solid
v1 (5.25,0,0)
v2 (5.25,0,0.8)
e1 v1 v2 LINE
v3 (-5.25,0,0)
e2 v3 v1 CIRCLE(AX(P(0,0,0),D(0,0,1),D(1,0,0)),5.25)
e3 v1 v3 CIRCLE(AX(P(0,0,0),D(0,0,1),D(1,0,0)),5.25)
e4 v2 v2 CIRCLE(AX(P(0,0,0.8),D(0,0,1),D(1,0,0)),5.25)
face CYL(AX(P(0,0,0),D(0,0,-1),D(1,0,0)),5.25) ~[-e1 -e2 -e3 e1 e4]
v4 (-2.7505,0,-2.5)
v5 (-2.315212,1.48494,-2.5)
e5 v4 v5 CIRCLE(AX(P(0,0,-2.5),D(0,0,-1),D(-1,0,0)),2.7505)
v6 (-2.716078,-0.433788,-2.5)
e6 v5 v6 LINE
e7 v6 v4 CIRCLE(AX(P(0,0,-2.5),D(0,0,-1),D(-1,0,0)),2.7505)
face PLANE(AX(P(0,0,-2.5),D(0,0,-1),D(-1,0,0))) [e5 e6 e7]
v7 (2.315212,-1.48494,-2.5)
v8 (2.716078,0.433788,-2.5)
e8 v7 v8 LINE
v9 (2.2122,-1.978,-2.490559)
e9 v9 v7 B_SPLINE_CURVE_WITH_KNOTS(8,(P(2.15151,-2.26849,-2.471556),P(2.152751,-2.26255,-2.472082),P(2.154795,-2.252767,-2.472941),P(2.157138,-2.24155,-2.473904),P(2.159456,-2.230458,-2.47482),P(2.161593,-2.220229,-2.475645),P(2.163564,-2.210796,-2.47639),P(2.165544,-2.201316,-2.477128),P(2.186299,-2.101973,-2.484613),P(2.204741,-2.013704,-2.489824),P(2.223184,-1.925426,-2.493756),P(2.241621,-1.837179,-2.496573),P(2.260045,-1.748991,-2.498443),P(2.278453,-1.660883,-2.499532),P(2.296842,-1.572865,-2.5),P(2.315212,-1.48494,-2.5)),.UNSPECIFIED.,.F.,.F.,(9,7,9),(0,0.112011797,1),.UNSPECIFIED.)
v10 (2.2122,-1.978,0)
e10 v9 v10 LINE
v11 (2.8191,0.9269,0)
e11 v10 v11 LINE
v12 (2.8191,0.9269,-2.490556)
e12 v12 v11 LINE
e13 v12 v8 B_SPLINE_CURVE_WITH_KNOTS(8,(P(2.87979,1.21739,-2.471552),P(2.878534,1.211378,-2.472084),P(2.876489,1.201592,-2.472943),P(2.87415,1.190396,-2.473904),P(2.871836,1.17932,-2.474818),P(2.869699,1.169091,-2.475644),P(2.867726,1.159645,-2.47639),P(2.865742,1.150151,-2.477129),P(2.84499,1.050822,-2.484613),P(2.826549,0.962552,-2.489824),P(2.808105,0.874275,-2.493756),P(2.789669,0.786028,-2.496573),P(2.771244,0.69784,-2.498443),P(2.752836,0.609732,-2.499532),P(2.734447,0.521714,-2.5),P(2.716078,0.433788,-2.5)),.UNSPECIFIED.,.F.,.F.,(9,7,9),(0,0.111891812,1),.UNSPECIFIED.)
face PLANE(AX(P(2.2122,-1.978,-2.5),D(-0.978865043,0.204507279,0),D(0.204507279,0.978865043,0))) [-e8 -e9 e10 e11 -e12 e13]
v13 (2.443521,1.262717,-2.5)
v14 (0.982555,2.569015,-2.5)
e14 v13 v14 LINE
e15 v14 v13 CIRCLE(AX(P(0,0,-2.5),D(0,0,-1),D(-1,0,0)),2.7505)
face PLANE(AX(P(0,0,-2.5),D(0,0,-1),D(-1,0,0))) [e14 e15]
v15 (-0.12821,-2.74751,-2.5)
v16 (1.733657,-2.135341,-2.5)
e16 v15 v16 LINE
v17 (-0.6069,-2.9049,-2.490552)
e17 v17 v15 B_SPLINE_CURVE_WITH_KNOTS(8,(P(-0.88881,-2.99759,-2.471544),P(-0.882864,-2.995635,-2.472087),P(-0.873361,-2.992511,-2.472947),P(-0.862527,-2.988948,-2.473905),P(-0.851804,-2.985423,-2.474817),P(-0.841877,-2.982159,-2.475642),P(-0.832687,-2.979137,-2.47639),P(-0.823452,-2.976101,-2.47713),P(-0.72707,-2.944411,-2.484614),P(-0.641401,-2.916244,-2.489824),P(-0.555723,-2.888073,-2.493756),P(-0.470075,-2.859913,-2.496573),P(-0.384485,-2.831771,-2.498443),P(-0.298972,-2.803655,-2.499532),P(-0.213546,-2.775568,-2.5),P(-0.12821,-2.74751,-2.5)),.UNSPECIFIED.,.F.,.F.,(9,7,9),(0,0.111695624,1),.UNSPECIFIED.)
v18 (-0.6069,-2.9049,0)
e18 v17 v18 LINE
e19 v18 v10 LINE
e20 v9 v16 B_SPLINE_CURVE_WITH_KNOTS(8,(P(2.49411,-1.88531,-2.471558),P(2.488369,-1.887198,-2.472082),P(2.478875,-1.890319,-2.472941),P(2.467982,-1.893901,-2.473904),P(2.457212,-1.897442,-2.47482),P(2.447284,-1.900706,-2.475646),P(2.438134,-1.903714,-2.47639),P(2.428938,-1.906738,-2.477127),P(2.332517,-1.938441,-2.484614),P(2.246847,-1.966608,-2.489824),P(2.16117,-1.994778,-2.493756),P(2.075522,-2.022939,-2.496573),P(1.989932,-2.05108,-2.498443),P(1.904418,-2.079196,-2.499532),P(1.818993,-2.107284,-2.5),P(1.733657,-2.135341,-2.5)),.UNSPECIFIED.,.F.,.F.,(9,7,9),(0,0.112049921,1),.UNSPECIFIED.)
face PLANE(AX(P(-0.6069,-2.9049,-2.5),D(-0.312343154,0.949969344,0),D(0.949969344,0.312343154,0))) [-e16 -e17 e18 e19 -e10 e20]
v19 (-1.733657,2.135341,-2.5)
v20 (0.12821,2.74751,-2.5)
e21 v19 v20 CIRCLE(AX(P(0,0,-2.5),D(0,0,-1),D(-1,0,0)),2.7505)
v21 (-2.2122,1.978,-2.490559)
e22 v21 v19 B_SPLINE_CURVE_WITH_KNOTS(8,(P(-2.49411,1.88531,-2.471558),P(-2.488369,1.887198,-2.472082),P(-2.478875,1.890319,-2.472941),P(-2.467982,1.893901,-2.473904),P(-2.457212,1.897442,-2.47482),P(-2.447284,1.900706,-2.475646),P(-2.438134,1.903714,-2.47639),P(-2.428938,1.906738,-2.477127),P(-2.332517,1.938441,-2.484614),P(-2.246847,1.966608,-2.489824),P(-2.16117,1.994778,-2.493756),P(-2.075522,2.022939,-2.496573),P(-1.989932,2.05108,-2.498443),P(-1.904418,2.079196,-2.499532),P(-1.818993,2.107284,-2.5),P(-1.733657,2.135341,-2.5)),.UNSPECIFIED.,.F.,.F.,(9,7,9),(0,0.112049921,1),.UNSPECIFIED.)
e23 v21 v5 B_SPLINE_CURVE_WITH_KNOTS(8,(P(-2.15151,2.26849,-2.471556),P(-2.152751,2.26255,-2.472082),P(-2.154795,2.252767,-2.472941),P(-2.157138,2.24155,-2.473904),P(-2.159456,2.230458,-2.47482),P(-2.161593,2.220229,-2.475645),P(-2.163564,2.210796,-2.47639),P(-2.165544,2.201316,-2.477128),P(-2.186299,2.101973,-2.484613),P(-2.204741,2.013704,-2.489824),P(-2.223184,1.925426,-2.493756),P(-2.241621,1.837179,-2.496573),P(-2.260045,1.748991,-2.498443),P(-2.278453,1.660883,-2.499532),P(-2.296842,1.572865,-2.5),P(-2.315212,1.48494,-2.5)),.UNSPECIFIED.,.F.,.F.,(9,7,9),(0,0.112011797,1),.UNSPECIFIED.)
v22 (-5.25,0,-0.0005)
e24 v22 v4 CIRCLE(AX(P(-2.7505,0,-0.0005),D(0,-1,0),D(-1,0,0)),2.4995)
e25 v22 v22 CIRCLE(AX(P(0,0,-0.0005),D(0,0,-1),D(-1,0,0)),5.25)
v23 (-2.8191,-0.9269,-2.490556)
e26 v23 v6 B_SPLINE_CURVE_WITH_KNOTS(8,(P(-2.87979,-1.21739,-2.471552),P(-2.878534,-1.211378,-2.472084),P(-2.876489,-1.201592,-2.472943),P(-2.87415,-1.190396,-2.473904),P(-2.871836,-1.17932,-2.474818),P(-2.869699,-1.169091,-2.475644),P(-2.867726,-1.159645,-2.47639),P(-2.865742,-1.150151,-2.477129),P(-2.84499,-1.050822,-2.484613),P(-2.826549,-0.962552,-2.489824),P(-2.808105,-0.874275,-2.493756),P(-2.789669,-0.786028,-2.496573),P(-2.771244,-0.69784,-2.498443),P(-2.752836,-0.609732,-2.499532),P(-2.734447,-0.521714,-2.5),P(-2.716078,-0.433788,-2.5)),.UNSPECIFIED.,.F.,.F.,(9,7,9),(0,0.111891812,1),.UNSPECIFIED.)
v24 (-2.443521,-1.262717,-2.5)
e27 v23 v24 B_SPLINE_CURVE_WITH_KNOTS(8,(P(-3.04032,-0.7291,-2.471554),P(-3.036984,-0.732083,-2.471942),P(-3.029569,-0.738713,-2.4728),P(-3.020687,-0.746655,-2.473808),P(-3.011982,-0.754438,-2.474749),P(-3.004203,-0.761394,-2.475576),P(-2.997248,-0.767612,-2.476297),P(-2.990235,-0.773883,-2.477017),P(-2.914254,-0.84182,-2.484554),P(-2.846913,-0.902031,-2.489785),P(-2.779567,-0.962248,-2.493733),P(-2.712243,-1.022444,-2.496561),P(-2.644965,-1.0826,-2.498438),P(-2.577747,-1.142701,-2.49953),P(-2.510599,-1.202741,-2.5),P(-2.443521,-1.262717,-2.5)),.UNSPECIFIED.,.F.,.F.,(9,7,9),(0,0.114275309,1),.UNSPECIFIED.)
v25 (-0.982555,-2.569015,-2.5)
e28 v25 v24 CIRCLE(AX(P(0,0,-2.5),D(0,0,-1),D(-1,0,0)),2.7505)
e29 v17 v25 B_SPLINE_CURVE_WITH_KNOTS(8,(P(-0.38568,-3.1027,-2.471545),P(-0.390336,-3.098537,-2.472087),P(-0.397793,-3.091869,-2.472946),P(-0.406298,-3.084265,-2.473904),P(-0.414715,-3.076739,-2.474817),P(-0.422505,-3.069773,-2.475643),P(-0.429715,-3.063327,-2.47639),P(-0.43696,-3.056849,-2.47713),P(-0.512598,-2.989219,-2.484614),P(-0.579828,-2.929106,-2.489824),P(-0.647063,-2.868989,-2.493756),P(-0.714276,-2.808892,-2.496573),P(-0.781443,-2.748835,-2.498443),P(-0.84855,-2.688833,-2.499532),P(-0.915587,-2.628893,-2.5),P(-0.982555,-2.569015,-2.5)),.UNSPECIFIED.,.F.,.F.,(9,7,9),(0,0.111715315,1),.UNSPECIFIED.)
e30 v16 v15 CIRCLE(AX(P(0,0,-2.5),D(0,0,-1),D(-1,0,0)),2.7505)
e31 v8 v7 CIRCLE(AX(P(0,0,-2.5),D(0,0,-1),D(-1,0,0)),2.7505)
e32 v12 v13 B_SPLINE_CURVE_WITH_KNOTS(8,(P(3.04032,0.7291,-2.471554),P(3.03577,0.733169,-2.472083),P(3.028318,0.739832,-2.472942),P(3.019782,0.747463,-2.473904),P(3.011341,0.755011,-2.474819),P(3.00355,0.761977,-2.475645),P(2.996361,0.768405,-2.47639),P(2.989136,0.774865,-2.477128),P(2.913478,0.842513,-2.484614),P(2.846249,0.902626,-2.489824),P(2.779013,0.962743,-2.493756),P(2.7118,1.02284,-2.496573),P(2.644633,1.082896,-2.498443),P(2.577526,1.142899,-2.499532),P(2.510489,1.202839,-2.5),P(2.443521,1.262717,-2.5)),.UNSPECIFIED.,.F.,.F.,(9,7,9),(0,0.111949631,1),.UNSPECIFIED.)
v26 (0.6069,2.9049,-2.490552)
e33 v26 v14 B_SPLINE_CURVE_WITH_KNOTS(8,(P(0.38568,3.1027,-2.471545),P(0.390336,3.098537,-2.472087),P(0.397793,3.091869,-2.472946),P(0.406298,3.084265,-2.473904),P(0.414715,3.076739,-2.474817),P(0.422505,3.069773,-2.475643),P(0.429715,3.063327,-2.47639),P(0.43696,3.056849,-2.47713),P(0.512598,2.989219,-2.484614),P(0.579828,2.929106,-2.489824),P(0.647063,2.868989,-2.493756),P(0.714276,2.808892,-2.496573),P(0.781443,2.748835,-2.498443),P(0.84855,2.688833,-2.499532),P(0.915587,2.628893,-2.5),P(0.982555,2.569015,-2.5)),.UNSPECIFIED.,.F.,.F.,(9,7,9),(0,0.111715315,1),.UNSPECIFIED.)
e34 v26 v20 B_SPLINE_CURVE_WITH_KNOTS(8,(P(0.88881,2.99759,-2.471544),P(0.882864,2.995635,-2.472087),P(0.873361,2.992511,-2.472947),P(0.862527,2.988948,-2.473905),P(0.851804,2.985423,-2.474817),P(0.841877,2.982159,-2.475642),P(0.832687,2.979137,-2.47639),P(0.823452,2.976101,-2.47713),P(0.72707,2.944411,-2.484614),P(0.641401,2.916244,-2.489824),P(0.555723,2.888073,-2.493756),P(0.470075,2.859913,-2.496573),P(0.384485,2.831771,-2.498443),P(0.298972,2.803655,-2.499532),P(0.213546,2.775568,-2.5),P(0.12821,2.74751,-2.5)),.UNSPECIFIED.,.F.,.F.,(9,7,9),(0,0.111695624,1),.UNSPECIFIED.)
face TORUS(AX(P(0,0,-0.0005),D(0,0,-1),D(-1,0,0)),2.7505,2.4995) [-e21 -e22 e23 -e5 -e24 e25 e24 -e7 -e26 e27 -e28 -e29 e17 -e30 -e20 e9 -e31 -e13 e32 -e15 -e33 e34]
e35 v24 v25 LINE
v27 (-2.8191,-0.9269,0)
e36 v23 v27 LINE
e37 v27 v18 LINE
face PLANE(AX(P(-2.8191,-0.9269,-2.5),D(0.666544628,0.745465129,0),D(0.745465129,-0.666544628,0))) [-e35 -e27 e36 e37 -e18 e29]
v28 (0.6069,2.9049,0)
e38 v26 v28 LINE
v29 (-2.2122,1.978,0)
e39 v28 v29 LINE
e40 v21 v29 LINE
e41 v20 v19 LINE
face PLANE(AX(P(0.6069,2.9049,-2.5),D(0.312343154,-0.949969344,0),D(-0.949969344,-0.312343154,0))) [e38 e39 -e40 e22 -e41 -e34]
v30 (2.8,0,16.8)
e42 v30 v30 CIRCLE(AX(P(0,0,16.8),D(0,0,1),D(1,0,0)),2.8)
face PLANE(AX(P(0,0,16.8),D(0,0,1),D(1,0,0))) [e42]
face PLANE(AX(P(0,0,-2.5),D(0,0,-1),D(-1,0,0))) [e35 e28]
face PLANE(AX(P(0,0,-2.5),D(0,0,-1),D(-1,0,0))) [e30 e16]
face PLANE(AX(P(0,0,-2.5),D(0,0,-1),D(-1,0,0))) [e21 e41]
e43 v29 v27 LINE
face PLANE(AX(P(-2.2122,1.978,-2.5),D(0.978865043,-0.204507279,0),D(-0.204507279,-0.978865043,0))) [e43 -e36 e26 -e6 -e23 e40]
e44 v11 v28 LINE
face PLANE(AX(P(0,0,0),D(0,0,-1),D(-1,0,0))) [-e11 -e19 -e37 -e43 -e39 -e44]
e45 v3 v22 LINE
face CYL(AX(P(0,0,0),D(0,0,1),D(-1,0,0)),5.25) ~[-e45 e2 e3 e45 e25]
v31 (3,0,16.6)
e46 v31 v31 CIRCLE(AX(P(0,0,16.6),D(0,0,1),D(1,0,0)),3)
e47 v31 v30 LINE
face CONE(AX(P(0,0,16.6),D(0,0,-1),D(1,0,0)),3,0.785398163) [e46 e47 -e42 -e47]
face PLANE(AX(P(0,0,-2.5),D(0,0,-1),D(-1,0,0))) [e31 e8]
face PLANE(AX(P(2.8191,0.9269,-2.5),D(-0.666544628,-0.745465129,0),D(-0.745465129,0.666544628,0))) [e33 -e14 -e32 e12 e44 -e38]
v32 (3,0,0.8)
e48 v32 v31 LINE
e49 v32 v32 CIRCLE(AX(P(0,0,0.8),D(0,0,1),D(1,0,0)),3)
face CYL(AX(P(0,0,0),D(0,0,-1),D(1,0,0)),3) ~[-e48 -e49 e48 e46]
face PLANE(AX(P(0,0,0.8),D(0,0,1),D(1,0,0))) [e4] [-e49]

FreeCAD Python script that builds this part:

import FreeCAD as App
import Part
import Sketcher
Q = App.Units.Quantity


def edges_at(feature, points):
    """Names of the edges that pass closest to the given points."""
    edges = feature.Shape.Edges
    near = lambda p: min(range(len(edges)), key=lambda i: edges[i].distToShape(Part.Vertex(*p))[0])
    return sorted({f"Edge{near(p) + 1}" for p in points})


def add_polygon(sketch, points):
    """Adds a closed chain of lines whose ends are joined by coincident constraints."""
    first, n = sketch.GeometryCount, len(points)
    for a, b in zip(points, points[1:] + points[:1]):
        sketch.addGeometry(Part.LineSegment(App.Vector(*a, 0), App.Vector(*b, 0)), False)
    for i in range(n):
        sketch.addConstraint(Sketcher.Constraint("Coincident", first + i, 2, first + (i + 1) % n, 1))

doc = App.newDocument("Part")
body = doc.addObject("PartDesign::Body", "Body")

sketch1 = body.newObject("Sketcher::SketchObject", "Sketch")
sketch1.AttachmentSupport = (doc.getObject("XY_Plane"), [""])
sketch1.MapMode = "FlatFace"
sketch1.addGeometry(Part.Circle(App.Vector(0, 0, 0), App.Vector(0, 0, 1), 5.2), False)
sketch1.addGeometry(Part.Circle(App.Vector(0, 0, 0), App.Vector(0, 0, 1), 3), False)
sketch1.addConstraint(Sketcher.Constraint("Coincident", 0, 3, -1, 1))
sketch1.addConstraint(Sketcher.Constraint("Coincident", 1, 3, -1, 1))
sketch1.addConstraint(Sketcher.Constraint("Diameter", 1, Q("6 mm")))
sketch1.addConstraint(Sketcher.Constraint("Diameter", 0, Q("10.5 mm")))
pad1 = body.newObject("PartDesign::Pad", "Pad")
pad1.Profile = sketch1
pad1.Length = 0.8

sketch2 = body.newObject("Sketcher::SketchObject", "Sketch001")
sketch2.AttachmentSupport = (doc.getObject("XY_Plane"), [""])
sketch2.MapMode = "FlatFace"
sketch2.addGeometry(Part.Circle(App.Vector(0, 0, 0), App.Vector(0, 0, 1), 3), False)
sketch2.addConstraint(Sketcher.Constraint("Coincident", 0, 3, -1, 1))
sketch2.addConstraint(Sketcher.Constraint("Diameter", 0, Q("6 mm")))
pad2 = body.newObject("PartDesign::Pad", "Pad001")
pad2.Profile = sketch2
pad2.Length = 16.8

sketch3 = body.newObject("Sketcher::SketchObject", "Sketch002")
sketch3.AttachmentSupport = (doc.getObject("XY_Plane"), [""])
sketch3.MapMode = "FlatFace"
sketch3.addGeometry(Part.Circle(App.Vector(0, 0, 0), App.Vector(0, 0, 1), 5), False)
sketch3.addConstraint(Sketcher.Constraint("Coincident", 0, 3, -1, 1))
sketch3.addConstraint(Sketcher.Constraint("Diameter", 0, Q("10.5 mm")))
pad3 = body.newObject("PartDesign::Pad", "Pad002")
pad3.Profile = sketch3
pad3.Length = 2.5
pad3.Reversed = True
doc.recompute()

fillet = body.newObject("PartDesign::Fillet", "Fillet")
fillet.Base = (pad3, edges_at(pad3, [(5.25, 0, -2.5)]))
fillet.Radius = 2.5

sketch4 = body.newObject("Sketcher::SketchObject", "Sketch003")
sketch4.AttachmentSupport = (doc.getObject("XY_Plane"), [""])
sketch4.MapMode = "FlatFace"
sketch4.AttachmentOffset = App.Placement(App.Vector(0, 0, -2.5), App.Rotation())
add_polygon(sketch4, [(2.8, 0.9), (2.2, -2), (-0.6, -2.9), (-2.8, -0.9), (-2.2, 2), (0.6, 2.9)])
sketch4.addConstraint(Sketcher.Constraint("Symmetric", 0, 2, 3, 2, -1, 1))
sketch4.addConstraint(Sketcher.Constraint("Symmetric", 1, 2, 4, 2, -1, 1))
sketch4.addConstraint(Sketcher.Constraint("Symmetric", 2, 2, 5, 2, -1, 1))
sketch4.addConstraint(Sketcher.Constraint("Equal", 0, 1))
sketch4.addConstraint(Sketcher.Constraint("Equal", 1, 2))
sketch4.addConstraint(Sketcher.Constraint("Angle", 0, Q("-101.8007 deg")))
sketch4.addConstraint(Sketcher.Constraint("Angle", 1, Q("-161.7995 deg")))
sketch4.addConstraint(Sketcher.Constraint("Angle", 2, Q("138.199 deg")))
sketch4.addConstraint(Sketcher.Constraint("DistanceY", 0, 2, -1, 1, Q("1.978 mm")))
pocket1 = body.newObject("PartDesign::Pocket", "Pocket")
pocket1.Profile = sketch4
pocket1.Length = 2.5
pocket1.Reversed = True
doc.recompute()

chamfer = body.newObject("PartDesign::Chamfer", "Chamfer")
chamfer.Base = (pocket1, edges_at(pocket1, [(-3, 0, 16.8)]))
chamfer.Size = 0.2

doc.recompute()
